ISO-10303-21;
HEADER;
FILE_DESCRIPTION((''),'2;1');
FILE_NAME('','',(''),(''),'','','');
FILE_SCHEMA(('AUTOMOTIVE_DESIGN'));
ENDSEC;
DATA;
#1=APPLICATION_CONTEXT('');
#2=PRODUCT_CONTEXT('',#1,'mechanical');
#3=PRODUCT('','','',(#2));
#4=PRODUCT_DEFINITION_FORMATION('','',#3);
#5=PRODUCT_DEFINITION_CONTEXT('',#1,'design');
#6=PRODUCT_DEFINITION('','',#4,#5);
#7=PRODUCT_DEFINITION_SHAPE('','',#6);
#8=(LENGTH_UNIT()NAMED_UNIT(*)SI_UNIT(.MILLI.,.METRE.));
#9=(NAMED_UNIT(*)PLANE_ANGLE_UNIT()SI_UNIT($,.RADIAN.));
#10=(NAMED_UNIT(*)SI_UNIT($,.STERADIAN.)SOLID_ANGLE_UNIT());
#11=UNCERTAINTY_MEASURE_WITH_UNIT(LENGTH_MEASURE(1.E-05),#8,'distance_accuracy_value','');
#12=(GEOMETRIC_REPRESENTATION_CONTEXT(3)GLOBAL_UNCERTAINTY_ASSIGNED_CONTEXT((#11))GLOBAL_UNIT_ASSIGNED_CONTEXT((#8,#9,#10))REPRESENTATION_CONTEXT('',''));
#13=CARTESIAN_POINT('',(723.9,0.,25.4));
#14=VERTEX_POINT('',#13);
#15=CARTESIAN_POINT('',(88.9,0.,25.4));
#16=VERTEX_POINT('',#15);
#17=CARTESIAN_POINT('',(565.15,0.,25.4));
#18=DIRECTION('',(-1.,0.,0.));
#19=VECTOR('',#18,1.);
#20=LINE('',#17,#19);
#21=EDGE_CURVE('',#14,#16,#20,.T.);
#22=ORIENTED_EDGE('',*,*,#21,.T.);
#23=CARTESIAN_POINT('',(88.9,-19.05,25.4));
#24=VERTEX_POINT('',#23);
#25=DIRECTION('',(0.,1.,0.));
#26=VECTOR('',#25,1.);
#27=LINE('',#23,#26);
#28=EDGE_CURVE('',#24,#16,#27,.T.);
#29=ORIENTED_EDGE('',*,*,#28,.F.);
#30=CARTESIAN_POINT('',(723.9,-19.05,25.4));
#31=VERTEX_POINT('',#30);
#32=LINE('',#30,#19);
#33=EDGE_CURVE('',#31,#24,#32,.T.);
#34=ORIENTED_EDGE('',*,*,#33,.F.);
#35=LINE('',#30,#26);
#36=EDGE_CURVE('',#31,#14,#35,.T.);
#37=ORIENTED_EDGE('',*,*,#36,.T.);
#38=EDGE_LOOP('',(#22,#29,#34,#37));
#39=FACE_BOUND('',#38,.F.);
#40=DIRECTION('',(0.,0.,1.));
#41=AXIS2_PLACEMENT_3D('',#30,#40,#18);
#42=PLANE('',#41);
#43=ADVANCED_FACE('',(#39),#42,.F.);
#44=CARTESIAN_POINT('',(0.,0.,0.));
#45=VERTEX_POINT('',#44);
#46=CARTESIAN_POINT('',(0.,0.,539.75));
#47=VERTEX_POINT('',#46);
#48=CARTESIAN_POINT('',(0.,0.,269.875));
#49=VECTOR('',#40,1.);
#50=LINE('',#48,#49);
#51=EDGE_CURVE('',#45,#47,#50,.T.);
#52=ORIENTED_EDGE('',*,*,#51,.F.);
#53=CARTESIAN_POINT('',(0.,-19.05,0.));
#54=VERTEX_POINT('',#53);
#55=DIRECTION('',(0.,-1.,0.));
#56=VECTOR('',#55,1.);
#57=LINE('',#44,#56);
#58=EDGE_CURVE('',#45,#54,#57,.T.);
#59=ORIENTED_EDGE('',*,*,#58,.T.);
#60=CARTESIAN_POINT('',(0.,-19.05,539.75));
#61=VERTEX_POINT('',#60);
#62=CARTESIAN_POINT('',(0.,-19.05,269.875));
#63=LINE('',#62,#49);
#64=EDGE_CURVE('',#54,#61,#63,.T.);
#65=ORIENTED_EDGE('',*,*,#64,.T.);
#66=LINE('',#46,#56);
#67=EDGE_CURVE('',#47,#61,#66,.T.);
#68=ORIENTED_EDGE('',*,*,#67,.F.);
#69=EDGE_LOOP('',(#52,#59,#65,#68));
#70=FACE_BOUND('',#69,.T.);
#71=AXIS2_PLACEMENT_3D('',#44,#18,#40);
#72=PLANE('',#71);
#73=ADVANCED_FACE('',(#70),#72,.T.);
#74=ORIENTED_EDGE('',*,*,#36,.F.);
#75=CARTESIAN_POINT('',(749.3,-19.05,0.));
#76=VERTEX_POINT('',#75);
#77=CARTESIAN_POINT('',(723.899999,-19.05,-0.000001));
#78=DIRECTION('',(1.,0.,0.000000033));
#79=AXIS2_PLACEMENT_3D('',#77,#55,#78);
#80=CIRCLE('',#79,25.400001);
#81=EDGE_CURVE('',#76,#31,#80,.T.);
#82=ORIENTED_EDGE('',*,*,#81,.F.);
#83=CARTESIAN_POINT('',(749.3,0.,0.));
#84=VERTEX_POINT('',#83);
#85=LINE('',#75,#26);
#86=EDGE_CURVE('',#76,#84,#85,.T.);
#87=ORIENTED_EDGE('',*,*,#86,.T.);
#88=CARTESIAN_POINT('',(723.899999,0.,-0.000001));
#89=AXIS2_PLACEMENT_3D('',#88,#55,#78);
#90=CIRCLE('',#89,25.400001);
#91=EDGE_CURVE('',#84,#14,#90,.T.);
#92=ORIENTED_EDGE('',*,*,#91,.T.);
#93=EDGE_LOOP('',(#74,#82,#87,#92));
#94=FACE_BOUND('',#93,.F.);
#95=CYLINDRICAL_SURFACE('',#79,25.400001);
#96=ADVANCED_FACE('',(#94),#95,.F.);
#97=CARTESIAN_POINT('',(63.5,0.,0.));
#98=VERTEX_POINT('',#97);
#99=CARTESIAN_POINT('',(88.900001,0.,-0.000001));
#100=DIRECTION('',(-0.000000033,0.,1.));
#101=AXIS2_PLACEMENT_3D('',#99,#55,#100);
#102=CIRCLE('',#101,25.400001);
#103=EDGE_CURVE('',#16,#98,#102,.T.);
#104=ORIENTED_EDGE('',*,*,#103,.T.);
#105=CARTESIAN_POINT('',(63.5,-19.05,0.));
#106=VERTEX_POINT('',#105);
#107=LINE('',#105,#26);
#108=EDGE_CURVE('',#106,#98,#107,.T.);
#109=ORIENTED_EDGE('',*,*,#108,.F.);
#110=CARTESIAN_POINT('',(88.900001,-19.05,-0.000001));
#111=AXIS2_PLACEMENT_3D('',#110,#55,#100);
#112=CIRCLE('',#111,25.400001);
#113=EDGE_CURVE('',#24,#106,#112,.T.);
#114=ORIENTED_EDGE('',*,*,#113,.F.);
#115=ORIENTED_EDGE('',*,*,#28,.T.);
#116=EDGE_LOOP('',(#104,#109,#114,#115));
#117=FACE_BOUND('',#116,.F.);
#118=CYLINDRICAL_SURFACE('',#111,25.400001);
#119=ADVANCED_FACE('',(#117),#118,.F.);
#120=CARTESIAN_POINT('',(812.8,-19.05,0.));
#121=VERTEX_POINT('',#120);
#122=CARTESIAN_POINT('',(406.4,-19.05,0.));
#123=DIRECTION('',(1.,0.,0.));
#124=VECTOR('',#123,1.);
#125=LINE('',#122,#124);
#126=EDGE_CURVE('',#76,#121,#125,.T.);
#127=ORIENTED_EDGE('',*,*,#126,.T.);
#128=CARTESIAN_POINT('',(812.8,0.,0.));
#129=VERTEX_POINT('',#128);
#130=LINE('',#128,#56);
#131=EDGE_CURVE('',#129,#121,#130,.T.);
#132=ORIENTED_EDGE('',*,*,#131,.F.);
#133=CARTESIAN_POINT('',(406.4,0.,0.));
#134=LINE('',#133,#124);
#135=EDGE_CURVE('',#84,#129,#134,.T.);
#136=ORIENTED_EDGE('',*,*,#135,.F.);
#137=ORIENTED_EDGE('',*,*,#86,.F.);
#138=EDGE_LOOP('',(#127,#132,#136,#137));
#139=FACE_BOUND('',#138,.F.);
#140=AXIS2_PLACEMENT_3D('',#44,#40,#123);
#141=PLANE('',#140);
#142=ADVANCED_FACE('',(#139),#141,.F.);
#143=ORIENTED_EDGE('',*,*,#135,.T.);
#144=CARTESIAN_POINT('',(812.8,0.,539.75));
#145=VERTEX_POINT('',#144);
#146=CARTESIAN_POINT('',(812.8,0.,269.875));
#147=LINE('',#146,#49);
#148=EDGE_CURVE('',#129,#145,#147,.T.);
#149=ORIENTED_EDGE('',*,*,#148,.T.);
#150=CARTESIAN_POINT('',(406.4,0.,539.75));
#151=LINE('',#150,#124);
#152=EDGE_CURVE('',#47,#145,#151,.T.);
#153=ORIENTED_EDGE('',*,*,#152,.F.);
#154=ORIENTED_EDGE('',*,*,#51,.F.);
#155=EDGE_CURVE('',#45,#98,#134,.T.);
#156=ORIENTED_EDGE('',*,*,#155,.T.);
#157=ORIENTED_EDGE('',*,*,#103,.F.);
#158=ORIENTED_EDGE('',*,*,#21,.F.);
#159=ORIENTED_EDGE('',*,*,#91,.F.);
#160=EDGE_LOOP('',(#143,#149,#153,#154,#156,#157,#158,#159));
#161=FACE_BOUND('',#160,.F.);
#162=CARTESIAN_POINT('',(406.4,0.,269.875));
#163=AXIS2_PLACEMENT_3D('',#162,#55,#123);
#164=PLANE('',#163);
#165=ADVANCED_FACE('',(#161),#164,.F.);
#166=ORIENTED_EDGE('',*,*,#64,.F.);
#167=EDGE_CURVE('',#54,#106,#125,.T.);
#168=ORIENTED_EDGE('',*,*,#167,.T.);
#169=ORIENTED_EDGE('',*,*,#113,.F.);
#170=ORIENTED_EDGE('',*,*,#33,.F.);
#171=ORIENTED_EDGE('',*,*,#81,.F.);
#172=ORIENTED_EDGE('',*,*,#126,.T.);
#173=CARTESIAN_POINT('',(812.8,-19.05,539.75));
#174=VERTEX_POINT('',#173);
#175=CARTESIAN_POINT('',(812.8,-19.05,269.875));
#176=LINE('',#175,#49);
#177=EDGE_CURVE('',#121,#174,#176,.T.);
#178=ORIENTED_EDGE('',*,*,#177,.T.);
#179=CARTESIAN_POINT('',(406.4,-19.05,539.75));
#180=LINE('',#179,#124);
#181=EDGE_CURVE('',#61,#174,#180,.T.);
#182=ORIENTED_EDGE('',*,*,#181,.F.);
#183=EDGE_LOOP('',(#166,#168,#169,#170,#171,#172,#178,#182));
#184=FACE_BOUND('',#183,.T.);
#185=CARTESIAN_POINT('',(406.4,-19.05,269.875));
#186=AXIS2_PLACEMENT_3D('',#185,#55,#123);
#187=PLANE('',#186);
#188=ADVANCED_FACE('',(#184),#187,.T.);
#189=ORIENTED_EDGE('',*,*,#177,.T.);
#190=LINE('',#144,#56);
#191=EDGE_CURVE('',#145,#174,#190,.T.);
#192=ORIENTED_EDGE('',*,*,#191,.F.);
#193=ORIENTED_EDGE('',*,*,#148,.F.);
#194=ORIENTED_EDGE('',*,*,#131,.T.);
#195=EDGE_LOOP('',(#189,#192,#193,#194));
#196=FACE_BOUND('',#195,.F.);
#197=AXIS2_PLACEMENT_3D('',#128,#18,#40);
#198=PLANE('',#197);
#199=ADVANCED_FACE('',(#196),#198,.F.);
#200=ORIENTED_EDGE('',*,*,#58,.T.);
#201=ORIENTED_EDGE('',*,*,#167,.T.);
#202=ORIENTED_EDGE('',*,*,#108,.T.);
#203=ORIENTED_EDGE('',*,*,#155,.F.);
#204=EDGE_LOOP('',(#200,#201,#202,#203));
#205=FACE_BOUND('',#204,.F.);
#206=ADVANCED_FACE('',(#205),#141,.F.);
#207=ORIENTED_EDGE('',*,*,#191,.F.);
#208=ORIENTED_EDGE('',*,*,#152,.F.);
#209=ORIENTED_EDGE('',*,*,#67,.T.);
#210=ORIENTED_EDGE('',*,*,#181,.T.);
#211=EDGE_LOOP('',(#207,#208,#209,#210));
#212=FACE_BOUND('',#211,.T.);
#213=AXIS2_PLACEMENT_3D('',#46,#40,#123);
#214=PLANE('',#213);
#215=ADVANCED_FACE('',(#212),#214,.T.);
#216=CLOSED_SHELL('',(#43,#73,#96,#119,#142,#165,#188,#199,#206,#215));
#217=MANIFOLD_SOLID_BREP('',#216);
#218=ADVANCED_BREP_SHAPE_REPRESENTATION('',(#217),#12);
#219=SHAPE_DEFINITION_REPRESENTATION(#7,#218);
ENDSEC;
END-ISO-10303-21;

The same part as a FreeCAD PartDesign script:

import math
import FreeCAD as App
import Part
import Sketcher
Q = App.Units.Quantity

doc = App.newDocument("Part")
body = doc.addObject("PartDesign::Body", "Body")

sketch1 = body.newObject("Sketcher::SketchObject", "Sketch")
sketch1.AttachmentSupport = (doc.getObject("XZ_Plane"), [""])
sketch1.MapMode = "FlatFace"
sketch1.addGeometry([
    Part.LineSegment(App.Vector(0, 539.75, 0), App.Vector(0, 0, 0)),
    Part.LineSegment(App.Vector(0, 0, 0), App.Vector(812.8, 0, 0)),
    Part.LineSegment(App.Vector(812.8, 0, 0), App.Vector(812.8, 539.75, 0)),
    Part.LineSegment(App.Vector(812.8, 539.75, 0), App.Vector(0, 539.75, 0)),
], False)
sketch1.addConstraint([
    Sketcher.Constraint("Coincident", 0, 2, 1, 1),
    Sketcher.Constraint("Coincident", 1, 2, 2, 1),
    Sketcher.Constraint("Coincident", 2, 2, 3, 1),
    Sketcher.Constraint("Coincident", 3, 2, 0, 1),
    Sketcher.Constraint("Vertical", 0),
    Sketcher.Constraint("Horizontal", 1),
    Sketcher.Constraint("Vertical", 2),
    Sketcher.Constraint("Horizontal", 3),
    Sketcher.Constraint("Coincident", 0, 2, -1, 1),
    Sketcher.Constraint("DistanceX", 1, 1, 1, 2, Q("32 in")),
    Sketcher.Constraint("DistanceY", 0, 2, 0, 1, Q("21.25 in")),
])
pad1 = body.newObject("PartDesign::Pad", "Pad")
pad1.Profile = sketch1
pad1.Length = Q("0.75 in")

sketch2 = body.newObject("Sketcher::SketchObject", "Sketch001")
sketch2.AttachmentSupport = (doc.getObject("XZ_Plane"), [""])
sketch2.MapMode = "FlatFace"
sketch2.AttachmentOffset = App.Placement(App.Vector(0, 0, 0.75 * 25.4), App.Rotation())
sketch2.addGeometry([
    Part.ArcOfCircle(Part.Circle(App.Vector(88.900001, -0.000001, 0), App.Vector(0, 0, 1), 25.400001), math.radians(90.000002), math.radians(179.999998)),
    Part.LineSegment(App.Vector(63.5, 0, 0), App.Vector(749.3, 0, 0)),
    Part.ArcOfCircle(Part.Circle(App.Vector(723.899999, -0.000001, 0), App.Vector(0, 0, 1), 25.400001), math.radians(0.000002), math.radians(89.999998)),
    Part.LineSegment(App.Vector(723.9, 25.4, 0), App.Vector(88.9, 25.4, 0)),
], False)
sketch2.addConstraint([
    Sketcher.Constraint("Coincident", 0, 2, 1, 1),
    Sketcher.Constraint("Coincident", 1, 2, 2, 1),
    Sketcher.Constraint("Tangent", 2, 2, 3, 1),
    Sketcher.Constraint("Tangent", 3, 2, 0, 1),
    Sketcher.Constraint("Horizontal", 1),
    Sketcher.Constraint("Horizontal", 3),
    Sketcher.Constraint("Equal", 0, 2),
    Sketcher.Constraint("PointOnObject", 0, 3, -1),
    Sketcher.Constraint("PointOnObject", 0, 2, -1),
    Sketcher.Constraint("Radius", 0, Q("1 in")),
    Sketcher.Constraint("DistanceX", 1, 1, 1, 2, Q("27 in")),
    Sketcher.Constraint("DistanceX", -1, 1, 0, 3, Q("3.5 in")),
])
pocket1 = body.newObject("PartDesign::Pocket", "Pocket")
pocket1.Profile = sketch2
pocket1.Length = Q("1 in")

doc.recompute()
